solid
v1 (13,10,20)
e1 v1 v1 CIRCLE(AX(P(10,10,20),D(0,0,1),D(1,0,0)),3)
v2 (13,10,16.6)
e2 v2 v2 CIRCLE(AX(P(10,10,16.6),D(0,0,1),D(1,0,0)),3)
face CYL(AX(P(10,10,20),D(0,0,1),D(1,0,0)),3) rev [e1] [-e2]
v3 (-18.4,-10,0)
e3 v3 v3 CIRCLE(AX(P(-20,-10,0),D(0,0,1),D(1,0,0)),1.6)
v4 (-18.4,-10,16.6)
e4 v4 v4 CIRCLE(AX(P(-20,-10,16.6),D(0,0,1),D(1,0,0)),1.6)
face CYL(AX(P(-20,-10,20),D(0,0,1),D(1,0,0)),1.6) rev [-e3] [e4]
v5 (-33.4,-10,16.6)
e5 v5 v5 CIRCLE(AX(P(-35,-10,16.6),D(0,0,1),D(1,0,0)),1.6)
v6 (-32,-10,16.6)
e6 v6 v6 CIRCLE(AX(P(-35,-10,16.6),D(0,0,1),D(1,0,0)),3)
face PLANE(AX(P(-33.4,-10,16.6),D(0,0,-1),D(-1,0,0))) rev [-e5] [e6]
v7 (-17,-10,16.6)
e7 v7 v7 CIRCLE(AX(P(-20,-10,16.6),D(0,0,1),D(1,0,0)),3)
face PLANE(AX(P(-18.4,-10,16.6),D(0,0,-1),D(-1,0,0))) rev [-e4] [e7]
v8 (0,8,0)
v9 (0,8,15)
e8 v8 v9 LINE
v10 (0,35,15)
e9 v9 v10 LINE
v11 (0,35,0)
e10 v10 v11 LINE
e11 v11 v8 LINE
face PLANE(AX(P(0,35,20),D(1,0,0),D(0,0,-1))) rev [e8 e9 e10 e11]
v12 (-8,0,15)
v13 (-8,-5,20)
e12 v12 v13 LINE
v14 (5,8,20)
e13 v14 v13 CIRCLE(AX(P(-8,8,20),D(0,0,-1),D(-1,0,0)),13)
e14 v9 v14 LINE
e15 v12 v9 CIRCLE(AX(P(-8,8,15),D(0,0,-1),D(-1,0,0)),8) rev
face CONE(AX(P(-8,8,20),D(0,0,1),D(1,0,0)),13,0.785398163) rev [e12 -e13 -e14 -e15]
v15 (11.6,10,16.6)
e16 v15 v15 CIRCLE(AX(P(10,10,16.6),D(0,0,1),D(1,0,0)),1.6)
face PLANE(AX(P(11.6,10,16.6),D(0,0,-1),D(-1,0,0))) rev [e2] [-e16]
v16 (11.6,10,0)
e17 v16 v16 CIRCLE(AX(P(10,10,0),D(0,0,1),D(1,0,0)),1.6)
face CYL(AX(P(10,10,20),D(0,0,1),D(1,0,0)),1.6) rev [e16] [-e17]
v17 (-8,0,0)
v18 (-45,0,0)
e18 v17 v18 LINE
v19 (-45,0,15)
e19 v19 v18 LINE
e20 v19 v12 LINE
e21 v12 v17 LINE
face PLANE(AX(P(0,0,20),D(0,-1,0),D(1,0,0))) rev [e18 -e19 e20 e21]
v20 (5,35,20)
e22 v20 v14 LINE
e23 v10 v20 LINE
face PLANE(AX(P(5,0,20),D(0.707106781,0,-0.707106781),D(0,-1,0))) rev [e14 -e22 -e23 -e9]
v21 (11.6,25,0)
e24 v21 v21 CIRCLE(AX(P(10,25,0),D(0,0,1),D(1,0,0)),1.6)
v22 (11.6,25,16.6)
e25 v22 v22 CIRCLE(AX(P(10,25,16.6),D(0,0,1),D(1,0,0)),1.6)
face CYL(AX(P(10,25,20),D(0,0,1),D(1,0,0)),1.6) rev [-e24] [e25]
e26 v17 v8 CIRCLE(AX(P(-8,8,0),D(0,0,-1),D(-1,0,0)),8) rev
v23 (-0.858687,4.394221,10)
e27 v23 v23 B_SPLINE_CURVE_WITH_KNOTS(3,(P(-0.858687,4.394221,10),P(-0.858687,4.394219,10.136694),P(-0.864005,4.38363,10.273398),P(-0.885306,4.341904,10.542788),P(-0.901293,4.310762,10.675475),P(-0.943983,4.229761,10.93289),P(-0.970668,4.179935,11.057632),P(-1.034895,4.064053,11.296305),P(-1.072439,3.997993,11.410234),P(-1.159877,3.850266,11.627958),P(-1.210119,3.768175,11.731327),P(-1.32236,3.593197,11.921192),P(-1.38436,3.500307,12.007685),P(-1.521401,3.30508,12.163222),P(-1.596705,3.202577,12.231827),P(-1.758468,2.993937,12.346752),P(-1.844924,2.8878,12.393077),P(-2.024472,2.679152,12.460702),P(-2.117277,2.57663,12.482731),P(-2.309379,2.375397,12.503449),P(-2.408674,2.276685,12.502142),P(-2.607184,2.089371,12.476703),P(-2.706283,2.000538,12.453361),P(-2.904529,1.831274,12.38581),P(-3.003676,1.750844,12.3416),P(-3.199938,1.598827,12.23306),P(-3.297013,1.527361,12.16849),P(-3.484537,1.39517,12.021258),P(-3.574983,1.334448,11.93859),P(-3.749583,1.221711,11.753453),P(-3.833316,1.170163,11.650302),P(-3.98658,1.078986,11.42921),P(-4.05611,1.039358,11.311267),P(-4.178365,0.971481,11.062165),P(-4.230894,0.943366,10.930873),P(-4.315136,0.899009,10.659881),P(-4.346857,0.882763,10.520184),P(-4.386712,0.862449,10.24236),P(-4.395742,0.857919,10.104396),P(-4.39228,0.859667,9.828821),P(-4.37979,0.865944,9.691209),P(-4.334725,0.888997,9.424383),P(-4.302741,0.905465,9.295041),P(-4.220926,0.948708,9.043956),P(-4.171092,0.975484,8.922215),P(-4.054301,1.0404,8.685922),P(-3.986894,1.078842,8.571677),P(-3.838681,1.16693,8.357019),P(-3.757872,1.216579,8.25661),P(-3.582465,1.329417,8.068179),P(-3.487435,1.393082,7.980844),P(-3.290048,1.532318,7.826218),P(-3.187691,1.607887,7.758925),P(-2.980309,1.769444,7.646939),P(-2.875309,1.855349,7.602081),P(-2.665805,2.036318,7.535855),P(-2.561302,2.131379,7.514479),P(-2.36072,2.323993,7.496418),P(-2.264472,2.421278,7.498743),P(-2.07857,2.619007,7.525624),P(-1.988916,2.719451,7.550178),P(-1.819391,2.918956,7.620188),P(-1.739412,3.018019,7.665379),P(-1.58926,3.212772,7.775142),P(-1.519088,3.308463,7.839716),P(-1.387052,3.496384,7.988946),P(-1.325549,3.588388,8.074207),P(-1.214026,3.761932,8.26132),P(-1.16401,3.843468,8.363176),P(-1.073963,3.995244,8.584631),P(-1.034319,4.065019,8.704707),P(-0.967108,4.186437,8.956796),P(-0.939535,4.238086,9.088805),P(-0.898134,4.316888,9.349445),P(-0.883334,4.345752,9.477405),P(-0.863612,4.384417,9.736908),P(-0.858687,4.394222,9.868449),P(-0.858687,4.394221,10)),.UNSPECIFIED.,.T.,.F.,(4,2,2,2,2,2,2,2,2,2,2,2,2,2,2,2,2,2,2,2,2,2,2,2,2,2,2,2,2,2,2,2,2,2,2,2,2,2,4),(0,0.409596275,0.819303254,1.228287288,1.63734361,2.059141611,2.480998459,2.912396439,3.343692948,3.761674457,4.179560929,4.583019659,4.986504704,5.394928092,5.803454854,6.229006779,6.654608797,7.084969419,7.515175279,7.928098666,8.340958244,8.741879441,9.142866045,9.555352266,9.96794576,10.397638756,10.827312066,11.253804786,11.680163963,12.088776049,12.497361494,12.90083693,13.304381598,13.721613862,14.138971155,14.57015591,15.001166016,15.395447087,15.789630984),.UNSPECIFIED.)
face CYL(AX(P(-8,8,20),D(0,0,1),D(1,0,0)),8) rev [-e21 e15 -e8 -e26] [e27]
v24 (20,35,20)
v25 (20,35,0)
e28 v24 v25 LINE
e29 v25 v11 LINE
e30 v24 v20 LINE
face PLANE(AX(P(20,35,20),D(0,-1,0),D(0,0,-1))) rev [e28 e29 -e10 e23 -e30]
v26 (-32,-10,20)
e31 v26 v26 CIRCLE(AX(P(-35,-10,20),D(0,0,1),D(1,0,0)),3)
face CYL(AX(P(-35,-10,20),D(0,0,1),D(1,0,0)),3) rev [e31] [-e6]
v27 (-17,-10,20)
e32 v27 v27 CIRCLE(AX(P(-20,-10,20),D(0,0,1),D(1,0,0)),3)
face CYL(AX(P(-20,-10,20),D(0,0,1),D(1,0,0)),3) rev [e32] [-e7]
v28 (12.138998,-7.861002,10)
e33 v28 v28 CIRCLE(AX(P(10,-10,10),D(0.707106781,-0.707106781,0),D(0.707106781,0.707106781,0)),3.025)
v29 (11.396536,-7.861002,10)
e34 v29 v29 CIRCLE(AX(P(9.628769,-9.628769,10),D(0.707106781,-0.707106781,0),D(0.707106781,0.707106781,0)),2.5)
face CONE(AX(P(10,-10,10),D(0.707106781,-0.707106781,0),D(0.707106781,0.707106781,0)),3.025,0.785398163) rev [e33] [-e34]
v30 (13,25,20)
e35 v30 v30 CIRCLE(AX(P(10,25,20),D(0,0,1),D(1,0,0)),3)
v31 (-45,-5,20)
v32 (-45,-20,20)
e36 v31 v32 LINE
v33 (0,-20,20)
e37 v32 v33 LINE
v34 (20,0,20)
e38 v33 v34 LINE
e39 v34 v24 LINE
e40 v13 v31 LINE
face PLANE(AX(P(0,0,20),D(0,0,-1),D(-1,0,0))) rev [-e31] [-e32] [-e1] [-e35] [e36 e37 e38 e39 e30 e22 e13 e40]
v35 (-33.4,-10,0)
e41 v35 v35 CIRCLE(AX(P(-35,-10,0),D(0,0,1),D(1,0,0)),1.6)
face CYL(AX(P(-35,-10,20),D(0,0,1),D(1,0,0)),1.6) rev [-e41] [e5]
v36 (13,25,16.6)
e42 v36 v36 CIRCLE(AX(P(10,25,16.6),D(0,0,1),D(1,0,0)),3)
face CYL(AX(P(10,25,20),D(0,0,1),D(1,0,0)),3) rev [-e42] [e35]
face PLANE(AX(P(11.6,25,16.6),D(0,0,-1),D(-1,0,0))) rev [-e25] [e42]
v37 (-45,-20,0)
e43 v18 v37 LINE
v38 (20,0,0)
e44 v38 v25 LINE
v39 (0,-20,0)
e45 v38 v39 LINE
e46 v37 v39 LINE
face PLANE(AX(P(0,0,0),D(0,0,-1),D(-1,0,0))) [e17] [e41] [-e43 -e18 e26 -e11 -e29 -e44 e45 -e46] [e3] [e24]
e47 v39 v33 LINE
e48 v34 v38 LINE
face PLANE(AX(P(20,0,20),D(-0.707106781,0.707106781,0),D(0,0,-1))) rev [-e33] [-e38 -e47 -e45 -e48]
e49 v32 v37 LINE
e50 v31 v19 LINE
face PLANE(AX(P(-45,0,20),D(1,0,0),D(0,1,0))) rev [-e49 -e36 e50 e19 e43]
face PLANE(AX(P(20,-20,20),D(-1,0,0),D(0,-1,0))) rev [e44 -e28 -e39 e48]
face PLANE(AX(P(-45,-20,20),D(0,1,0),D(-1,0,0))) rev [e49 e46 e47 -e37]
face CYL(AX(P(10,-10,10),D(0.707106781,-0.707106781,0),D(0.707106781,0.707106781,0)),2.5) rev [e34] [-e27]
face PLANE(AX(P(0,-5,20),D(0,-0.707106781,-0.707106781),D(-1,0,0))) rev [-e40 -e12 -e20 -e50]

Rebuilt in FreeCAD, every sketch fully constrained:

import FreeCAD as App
import Part
import Sketcher
from FreeCAD import Vector
Q = App.Units.Quantity


def edges_at(feature, points):
    """Names of the edges that pass closest to the given points."""
    edges = feature.Shape.Edges
    near = lambda p: min(range(len(edges)), key=lambda i: edges[i].distToShape(Part.Vertex(*p))[0])
    return sorted({f"Edge{near(p) + 1}" for p in points})

doc = App.newDocument("Part")
body = doc.addObject("PartDesign::Body", "Body")

# Sketch on XY plane
sketch1 = body.newObject("Sketcher::SketchObject", "Sketch")
sketch1.AttachmentSupport = (doc.getObject("XY_Plane"), [""])
sketch1.MapMode = "FlatFace"
sketch1.addGeometry([
    Part.LineSegment(Vector(0, 0, 0), Vector(-45, 0, 0)),  # 0
    Part.LineSegment(Vector(-45, 0, 0), Vector(-45, -20, 0)),  # 1
    Part.LineSegment(Vector(-45, -20, 0), Vector(20, -20, 0)),  # 2
    Part.LineSegment(Vector(20, -20, 0), Vector(20, 35, 0)),  # 3
    Part.LineSegment(Vector(20, 35, 0), Vector(0, 35, 0)),  # 4
    Part.LineSegment(Vector(0, 35, 0), Vector(0, 0, 0)),  # 5
], False)
sketch1.addConstraint([
    Sketcher.Constraint("Coincident", 0, 2, 1, 1),
    Sketcher.Constraint("Coincident", 1, 2, 2, 1),
    Sketcher.Constraint("Coincident", 2, 2, 3, 1),
    Sketcher.Constraint("Coincident", 3, 2, 4, 1),
    Sketcher.Constraint("Coincident", 4, 2, 5, 1),
    Sketcher.Constraint("Coincident", 5, 2, 0, 1),
    Sketcher.Constraint("Horizontal", 0),
    Sketcher.Constraint("Vertical", 1),
    Sketcher.Constraint("Horizontal", 2),
    Sketcher.Constraint("Vertical", 3),
    Sketcher.Constraint("Horizontal", 4),
    Sketcher.Constraint("Vertical", 5),
    Sketcher.Constraint("Coincident", 5, 2, -1, 1),
    Sketcher.Constraint("Equal", 4, 1),
    Sketcher.Constraint("DistanceX", 0, 2, 0, 1, Q("45 mm")),
    Sketcher.Constraint("DistanceX", 2, 1, 2, 2, Q("65 mm")),
    Sketcher.Constraint("DistanceY", 3, 1, 3, 2, Q("55 mm")),
])
pad1 = body.newObject("PartDesign::Pad", "Pad")
pad1.Profile = sketch1
pad1.Length = 20

# Sketch on XY plane
sketch2 = body.newObject("Sketcher::SketchObject", "Sketch001")
sketch2.AttachmentSupport = (doc.getObject("XY_Plane"), [""])
sketch2.MapMode = "FlatFace"
sketch2.AttachmentOffset = App.Placement(Vector(0, 0, 20), App.Rotation())
sketch2.addGeometry([
    Part.Circle(Vector(-35, -10, 0), Vector(0, 0, 1), 1.6),
    Part.Circle(Vector(-20, -10, 0), Vector(0, 0, 1), 1.6),
    Part.Circle(Vector(10, 25, 0), Vector(0, 0, 1), 1.6),
    Part.Circle(Vector(10, 10, 0), Vector(0, 0, 1), 1.6),
], False)
sketch2.addConstraint([
    Sketcher.Constraint("Equal", 0, 1),
    Sketcher.Constraint("Equal", 1, 2),
    Sketcher.Constraint("Equal", 2, 3),
    Sketcher.Constraint("Horizontal", 0, 3, 1, 3),
    Sketcher.Constraint("Vertical", 2, 3, 3, 3),
    Sketcher.Constraint("Diameter", 0, Q("3.2 mm")),
    Sketcher.Constraint("DistanceX", 0, 3, -1, 1, Q("35 mm")),
    Sketcher.Constraint("DistanceY", 0, 3, -1, 1, Q("10 mm")),
    Sketcher.Constraint("DistanceX", 1, 3, -1, 1, Q("20 mm")),
    Sketcher.Constraint("DistanceX", -1, 1, 2, 3, Q("10 mm")),
    Sketcher.Constraint("DistanceY", -1, 1, 2, 3, Q("25 mm")),
    Sketcher.Constraint("DistanceY", -1, 1, 3, 3, Q("10 mm")),
])
doc.recompute()
hole = body.newObject("PartDesign::Hole", "Hole")
hole.Profile = sketch2
hole.ThreadType = "None"
hole.Diameter = 3.2
hole.DepthType = "ThroughAll"
hole.HoleCutType = "Counterbore"
hole.HoleCutDiameter = 6
hole.HoleCutDepth = 3.4
doc.recompute()

fillet = body.newObject("PartDesign::Fillet", "Fillet")
fillet.Base = (hole, edges_at(hole, [(0, 0, 10)]))
fillet.Radius = 8
doc.recompute()

chamfer = body.newObject("PartDesign::Chamfer", "Chamfer")
chamfer.Base = (fillet, edges_at(fillet, [(20, -20, 10)]))
chamfer.Size = 20

# Sketch on an angled plane
sketch3 = body.newObject("Sketcher::SketchObject", "Sketch002")
sketch3.Placement = App.Placement(Vector(10, -10, 0), App.Rotation(Vector(-0.707106781, -0.707106781, 0), Vector(0, 0, -0.999999999), Vector(0.707106781, -0.707106781, 0), "ZXY"))
sketch3.addGeometry(Part.Circle(Vector(0, -10, 0), Vector(0, 0, 1), 2.5), False)
sketch3.addConstraint([
    Sketcher.Constraint("PointOnObject", 0, 3, -2),
    Sketcher.Constraint("Diameter", 0, Q("5 mm")),
    Sketcher.Constraint("DistanceY", 0, 3, -1, 1, Q("10 mm")),
])
doc.recompute()
hole2 = body.newObject("PartDesign::Hole", "Hole001")
hole2.Profile = sketch3
hole2.ThreadType = "None"
hole2.Diameter = 5
hole2.DepthType = "ThroughAll"
hole2.HoleCutType = "Countersink"
hole2.HoleCutDiameter = 6.05
hole2.HoleCutCountersinkAngle = 90
doc.recompute()

chamfer2 = body.newObject("PartDesign::Chamfer", "Chamfer001")
chamfer2.Base = (hole2, edges_at(hole2, [(0, 21.5, 20), (-26.5, 0, 20), (-2.343, 2.343, 20)]))
chamfer2.Size = 5

doc.recompute()
